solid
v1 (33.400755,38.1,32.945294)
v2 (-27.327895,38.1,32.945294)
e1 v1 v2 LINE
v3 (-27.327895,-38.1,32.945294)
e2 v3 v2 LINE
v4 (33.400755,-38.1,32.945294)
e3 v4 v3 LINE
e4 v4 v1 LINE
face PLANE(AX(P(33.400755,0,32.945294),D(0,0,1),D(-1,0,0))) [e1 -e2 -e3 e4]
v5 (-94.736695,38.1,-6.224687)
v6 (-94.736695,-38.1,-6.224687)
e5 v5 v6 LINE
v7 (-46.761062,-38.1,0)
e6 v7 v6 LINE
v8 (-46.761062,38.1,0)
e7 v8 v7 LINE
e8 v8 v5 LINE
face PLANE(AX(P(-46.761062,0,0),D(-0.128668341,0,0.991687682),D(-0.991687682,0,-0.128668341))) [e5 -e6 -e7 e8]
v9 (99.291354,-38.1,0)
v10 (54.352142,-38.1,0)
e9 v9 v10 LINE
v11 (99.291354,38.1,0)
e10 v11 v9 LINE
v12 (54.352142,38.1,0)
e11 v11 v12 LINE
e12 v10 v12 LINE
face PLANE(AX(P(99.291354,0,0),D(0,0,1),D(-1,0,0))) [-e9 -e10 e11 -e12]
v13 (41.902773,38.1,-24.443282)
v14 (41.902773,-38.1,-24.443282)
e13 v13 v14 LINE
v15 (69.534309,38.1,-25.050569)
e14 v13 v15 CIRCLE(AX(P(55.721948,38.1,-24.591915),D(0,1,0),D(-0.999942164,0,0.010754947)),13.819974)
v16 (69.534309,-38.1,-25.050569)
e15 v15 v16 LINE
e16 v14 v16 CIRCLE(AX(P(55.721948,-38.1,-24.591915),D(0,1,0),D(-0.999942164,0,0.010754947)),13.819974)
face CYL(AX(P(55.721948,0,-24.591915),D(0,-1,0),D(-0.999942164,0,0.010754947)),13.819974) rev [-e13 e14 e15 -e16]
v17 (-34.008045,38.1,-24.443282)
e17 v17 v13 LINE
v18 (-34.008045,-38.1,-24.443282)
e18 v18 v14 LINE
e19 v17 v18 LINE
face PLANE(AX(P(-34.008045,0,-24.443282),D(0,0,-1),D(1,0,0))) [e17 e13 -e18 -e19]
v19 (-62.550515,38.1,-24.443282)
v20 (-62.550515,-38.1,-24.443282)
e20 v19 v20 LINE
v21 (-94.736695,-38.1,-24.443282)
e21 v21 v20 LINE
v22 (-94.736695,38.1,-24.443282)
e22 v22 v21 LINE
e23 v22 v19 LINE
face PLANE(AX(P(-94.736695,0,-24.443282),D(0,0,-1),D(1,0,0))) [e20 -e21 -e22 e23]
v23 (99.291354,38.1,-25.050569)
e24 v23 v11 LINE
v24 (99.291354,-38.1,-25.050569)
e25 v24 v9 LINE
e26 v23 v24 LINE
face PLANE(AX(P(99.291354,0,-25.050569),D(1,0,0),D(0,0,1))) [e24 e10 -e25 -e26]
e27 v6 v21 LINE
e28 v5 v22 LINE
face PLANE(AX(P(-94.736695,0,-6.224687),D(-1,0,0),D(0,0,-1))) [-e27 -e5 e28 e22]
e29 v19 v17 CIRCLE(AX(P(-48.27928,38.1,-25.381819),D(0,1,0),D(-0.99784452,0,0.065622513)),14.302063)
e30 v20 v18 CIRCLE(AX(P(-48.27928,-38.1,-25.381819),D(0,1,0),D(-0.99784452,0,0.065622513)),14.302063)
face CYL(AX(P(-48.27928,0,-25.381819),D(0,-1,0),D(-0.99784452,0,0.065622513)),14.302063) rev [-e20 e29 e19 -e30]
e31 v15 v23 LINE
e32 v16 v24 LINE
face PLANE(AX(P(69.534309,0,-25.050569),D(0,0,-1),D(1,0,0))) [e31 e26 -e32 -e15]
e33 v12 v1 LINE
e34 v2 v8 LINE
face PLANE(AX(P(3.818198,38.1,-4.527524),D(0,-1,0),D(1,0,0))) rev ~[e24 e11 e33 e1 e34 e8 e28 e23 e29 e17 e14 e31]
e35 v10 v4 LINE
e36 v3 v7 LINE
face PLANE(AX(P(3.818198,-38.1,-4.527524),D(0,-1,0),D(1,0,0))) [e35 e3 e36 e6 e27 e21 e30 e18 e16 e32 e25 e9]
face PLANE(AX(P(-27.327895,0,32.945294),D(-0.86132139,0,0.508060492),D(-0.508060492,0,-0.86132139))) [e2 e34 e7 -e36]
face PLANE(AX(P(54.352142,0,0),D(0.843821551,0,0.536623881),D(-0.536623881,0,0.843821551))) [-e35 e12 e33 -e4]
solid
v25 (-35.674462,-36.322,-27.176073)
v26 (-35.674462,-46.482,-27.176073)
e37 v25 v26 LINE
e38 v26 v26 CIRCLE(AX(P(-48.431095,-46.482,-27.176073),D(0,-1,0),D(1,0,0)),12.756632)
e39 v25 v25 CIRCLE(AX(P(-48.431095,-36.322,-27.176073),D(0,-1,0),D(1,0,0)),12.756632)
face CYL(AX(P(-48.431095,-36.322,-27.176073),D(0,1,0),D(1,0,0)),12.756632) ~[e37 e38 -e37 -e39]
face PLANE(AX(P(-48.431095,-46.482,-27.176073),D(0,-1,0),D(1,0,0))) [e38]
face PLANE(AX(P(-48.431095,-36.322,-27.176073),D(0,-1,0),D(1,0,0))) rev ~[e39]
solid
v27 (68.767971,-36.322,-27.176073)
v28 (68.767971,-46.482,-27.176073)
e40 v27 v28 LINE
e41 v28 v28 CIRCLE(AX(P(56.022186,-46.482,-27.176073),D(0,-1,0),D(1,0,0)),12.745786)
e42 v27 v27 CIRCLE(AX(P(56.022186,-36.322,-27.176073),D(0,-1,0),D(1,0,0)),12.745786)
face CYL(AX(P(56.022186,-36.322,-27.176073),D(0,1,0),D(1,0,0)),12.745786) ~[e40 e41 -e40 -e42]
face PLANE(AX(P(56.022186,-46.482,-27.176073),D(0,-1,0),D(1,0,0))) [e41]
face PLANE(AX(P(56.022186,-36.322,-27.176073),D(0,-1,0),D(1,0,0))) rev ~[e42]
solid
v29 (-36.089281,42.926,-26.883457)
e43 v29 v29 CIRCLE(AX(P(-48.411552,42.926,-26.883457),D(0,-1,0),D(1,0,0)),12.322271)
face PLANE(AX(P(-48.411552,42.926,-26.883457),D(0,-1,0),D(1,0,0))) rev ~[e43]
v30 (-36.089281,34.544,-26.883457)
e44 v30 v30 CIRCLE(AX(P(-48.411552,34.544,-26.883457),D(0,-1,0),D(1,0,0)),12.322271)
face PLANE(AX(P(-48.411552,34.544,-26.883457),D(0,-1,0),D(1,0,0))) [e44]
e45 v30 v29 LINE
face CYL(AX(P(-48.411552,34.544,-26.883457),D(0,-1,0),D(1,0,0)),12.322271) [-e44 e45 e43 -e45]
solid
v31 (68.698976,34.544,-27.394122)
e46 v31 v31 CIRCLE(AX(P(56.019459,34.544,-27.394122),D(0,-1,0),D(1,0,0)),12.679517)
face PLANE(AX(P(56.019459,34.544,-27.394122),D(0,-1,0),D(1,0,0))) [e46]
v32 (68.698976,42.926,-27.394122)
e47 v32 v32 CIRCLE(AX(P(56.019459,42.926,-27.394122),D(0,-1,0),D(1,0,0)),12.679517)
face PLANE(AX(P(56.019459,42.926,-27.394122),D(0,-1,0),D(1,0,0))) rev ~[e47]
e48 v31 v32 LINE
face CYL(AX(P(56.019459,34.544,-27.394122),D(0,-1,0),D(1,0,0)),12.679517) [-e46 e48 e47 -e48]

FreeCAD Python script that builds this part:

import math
import FreeCAD as App
import Part
import Sketcher

V = App.Vector
Q = App.Units.Quantity

doc = App.newDocument("Part")
body = doc.addObject("PartDesign::Body", "Body")

sketch1 = body.newObject("Sketcher::SketchObject", "Sketch")
sketch1.AttachmentSupport = (doc.getObject("XZ_Plane"), [""])
sketch1.MapMode = "FlatFace"
sketch1.addGeometry(Part.LineSegment(V(-27.327895, 32.945294, 0), V(-46.761062, 0, 0)), False)
sketch1.addGeometry(Part.LineSegment(V(-46.761062, 0, 0), V(-94.736695, -6.224687, 0)), False)
sketch1.addGeometry(Part.LineSegment(V(-94.736695, -6.224687, 0), V(-94.736695, -24.443282, 0)), False)
sketch1.addGeometry(Part.LineSegment(V(-94.736695, -24.443282, 0), V(-62.550515, -24.443282, 0)), False)
sketch1.addGeometry(Part.ArcOfCircle(Part.Circle(V(-48.27928, -25.381819, 0), V(0, 0, 1), 14.302063), math.radians(3.762597), math.radians(176.237403)), False)
sketch1.addGeometry(Part.LineSegment(V(-34.008045, -24.443282, 0), V(41.902773, -24.443282, 0)), False)
sketch1.addGeometry(Part.ArcOfCircle(Part.Circle(V(55.721948, -24.591915, 0), V(0, 0, 1), 13.819974), math.radians(-1.90187), math.radians(179.383775)), False)
sketch1.addGeometry(Part.LineSegment(V(69.534309, -25.050569, 0), V(99.291354, -25.050569, 0)), False)
sketch1.addGeometry(Part.LineSegment(V(99.291354, -25.050569, 0), V(99.291354, 0, 0)), False)
sketch1.addGeometry(Part.LineSegment(V(99.291354, 0, 0), V(54.352142, 0, 0)), False)
sketch1.addGeometry(Part.LineSegment(V(54.352142, 0, 0), V(33.400755, 32.945294, 0)), False)
sketch1.addGeometry(Part.LineSegment(V(33.400755, 32.945294, 0), V(-27.327895, 32.945294, 0)), False)
sketch1.addConstraint(Sketcher.Constraint("Coincident", 0, 2, 1, 1))
sketch1.addConstraint(Sketcher.Constraint("Coincident", 1, 2, 2, 1))
sketch1.addConstraint(Sketcher.Constraint("Coincident", 2, 2, 3, 1))
sketch1.addConstraint(Sketcher.Constraint("Coincident", 3, 2, 4, 2))
sketch1.addConstraint(Sketcher.Constraint("Coincident", 4, 1, 5, 1))
sketch1.addConstraint(Sketcher.Constraint("Coincident", 5, 2, 6, 2))
sketch1.addConstraint(Sketcher.Constraint("Coincident", 6, 1, 7, 1))
sketch1.addConstraint(Sketcher.Constraint("Coincident", 7, 2, 8, 1))
sketch1.addConstraint(Sketcher.Constraint("Coincident", 8, 2, 9, 1))
sketch1.addConstraint(Sketcher.Constraint("Coincident", 9, 2, 10, 1))
sketch1.addConstraint(Sketcher.Constraint("Coincident", 10, 2, 11, 1))
sketch1.addConstraint(Sketcher.Constraint("Coincident", 11, 2, 0, 1))
sketch1.addConstraint(Sketcher.Constraint("Vertical", 2))
sketch1.addConstraint(Sketcher.Constraint("Horizontal", 3))
sketch1.addConstraint(Sketcher.Constraint("Horizontal", 5))
sketch1.addConstraint(Sketcher.Constraint("Horizontal", 7))
sketch1.addConstraint(Sketcher.Constraint("Vertical", 8))
sketch1.addConstraint(Sketcher.Constraint("Horizontal", 9))
sketch1.addConstraint(Sketcher.Constraint("Horizontal", 11))
sketch1.addConstraint(Sketcher.Constraint("PointOnObject", 0, 2, -1))
sketch1.addConstraint(Sketcher.Constraint("PointOnObject", 8, 2, -1))
sketch1.addConstraint(Sketcher.Constraint("Horizontal", 3, 2, 4, 1))
sketch1.addConstraint(Sketcher.Constraint("Radius", 4, Q("14.302063 mm")))
sketch1.addConstraint(Sketcher.Constraint("Radius", 6, Q("13.819974 mm")))
sketch1.addConstraint(Sketcher.Constraint("DistanceX", 3, 1, 3, 2, Q("32.18618 mm")))
sketch1.addConstraint(Sketcher.Constraint("DistanceX", 11, 2, 11, 1, Q("60.728651 mm")))
sketch1.addConstraint(Sketcher.Constraint("DistanceY", 8, 1, 8, 2, Q("25.050569 mm")))
sketch1.addConstraint(Sketcher.Constraint("DistanceX", 4, 1, 7, 2, Q("133.299399 mm")))
sketch1.addConstraint(Sketcher.Constraint("DistanceX", 10, 2, 8, 2, Q("65.890599 mm")))
sketch1.addConstraint(Sketcher.Constraint("Distance", 0, Q("38.249711 mm")))
sketch1.addConstraint(Sketcher.Constraint("DistanceX", 5, 1, 5, 2, Q("75.910818 mm")))
sketch1.addConstraint(Sketcher.Constraint("DistanceX", 7, 1, 7, 2, Q("29.757045 mm")))
sketch1.addConstraint(Sketcher.Constraint("DistanceX", 9, 2, 9, 1, Q("44.939213 mm")))
sketch1.addConstraint(Sketcher.Constraint("DistanceY", 2, 2, 2, 1, Q("18.218595 mm")))
sketch1.addConstraint(Sketcher.Constraint("DistanceX", 4, 3, -1, 1, Q("48.27928 mm")))
sketch1.addConstraint(Sketcher.Constraint("DistanceY", 4, 3, -1, 1, Q("25.381819 mm")))
sketch1.addConstraint(Sketcher.Constraint("DistanceX", 0, 2, -1, 1, Q("46.761062 mm")))
sketch1.addConstraint(Sketcher.Constraint("DistanceY", 2, 2, -1, 1, Q("24.443282 mm")))
pad1 = body.newObject("PartDesign::Pad", "Pad")
pad1.Profile = sketch1
pad1.Type = "TwoLengths"
pad1.Length = Q("1.5 in")
pad1.Length2 = Q("1.5 in")
body2 = doc.addObject("PartDesign::Body", "Body001")

sketch2 = body2.newObject("Sketcher::SketchObject", "Sketch001")
sketch2.AttachmentSupport = (doc.getObject("XZ_Plane001"), [""])
sketch2.MapMode = "FlatFace"
sketch2.AttachmentOffset = App.Placement(V(0, 0, 1.43 * 25.4), App.Rotation())
sketch2.addGeometry(Part.Circle(V(-48, -27, 0), V(0, 0, 1), 13), False)
sketch2.addConstraint(Sketcher.Constraint("Diameter", 0, Q("25.513265 mm")))
sketch2.addConstraint(Sketcher.Constraint("DistanceX", 0, 3, -1, 1, Q("48.431095 mm")))
sketch2.addConstraint(Sketcher.Constraint("DistanceY", 0, 3, -1, 1, Q("27.176073 mm")))
pad2 = body2.newObject("PartDesign::Pad", "Pad001")
pad2.Profile = sketch2
pad2.Length = Q("0.4 in")
body3 = doc.addObject("PartDesign::Body", "Body002")

sketch3 = body3.newObject("Sketcher::SketchObject", "Sketch002")
sketch3.AttachmentSupport = (doc.getObject("XZ_Plane002"), [""])
sketch3.MapMode = "FlatFace"
sketch3.AttachmentOffset = App.Placement(V(0, 0, 1.43 * 25.4), App.Rotation())
sketch3.addGeometry(Part.Circle(V(56, -27, 0), V(0, 0, 1), 13), False)
sketch3.addConstraint(Sketcher.Constraint("Diameter", 0, Q("25.491571 mm")))
sketch3.addConstraint(Sketcher.Constraint("DistanceX", -1, 1, 0, 3, Q("56.022186 mm")))
sketch3.addConstraint(Sketcher.Constraint("DistanceY", 0, 3, -1, 1, Q("27.176073 mm")))
pad3 = body3.newObject("PartDesign::Pad", "Pad002")
pad3.Profile = sketch3
pad3.Length = Q("0.4 in")
body4 = doc.addObject("PartDesign::Body", "Body003")

sketch4 = body4.newObject("Sketcher::SketchObject", "Sketch003")
sketch4.AttachmentSupport = (doc.getObject("XZ_Plane003"), [""])
sketch4.MapMode = "FlatFace"
sketch4.AttachmentOffset = App.Placement(V(0, 0, -1.36 * 25.4), App.Rotation())
sketch4.addGeometry(Part.Circle(V(56, -27, 0), V(0, 0, 1), 13), False)
sketch4.addConstraint(Sketcher.Constraint("Diameter", 0, Q("25.359033 mm")))
sketch4.addConstraint(Sketcher.Constraint("DistanceX", -1, 1, 0, 3, Q("56.019459 mm")))
sketch4.addConstraint(Sketcher.Constraint("DistanceY", 0, 3, -1, 1, Q("27.394122 mm")))
pad4 = body4.newObject("PartDesign::Pad", "Pad003")
pad4.Profile = sketch4
pad4.Length = Q("0.33 in")
pad4.Reversed = True
body5 = doc.addObject("PartDesign::Body", "Body004")

sketch5 = body5.newObject("Sketcher::SketchObject", "Sketch004")
sketch5.AttachmentSupport = (doc.getObject("XZ_Plane004"), [""])
sketch5.MapMode = "FlatFace"
sketch5.AttachmentOffset = App.Placement(V(0, 0, -1.36 * 25.4), App.Rotation())
sketch5.addGeometry(Part.Circle(V(-48, -27, 0), V(0, 0, 1), 12), False)
sketch5.addConstraint(Sketcher.Constraint("Diameter", 0, Q("24.644542 mm")))
sketch5.addConstraint(Sketcher.Constraint("DistanceX", 0, 3, -1, 1, Q("48.411552 mm")))
sketch5.addConstraint(Sketcher.Constraint("DistanceY", 0, 3, -1, 1, Q("26.883457 mm")))
pad5 = body5.newObject("PartDesign::Pad", "Pad004")
pad5.Profile = sketch5
pad5.Length = Q("0.33 in")
pad5.Reversed = True

doc.recompute()
